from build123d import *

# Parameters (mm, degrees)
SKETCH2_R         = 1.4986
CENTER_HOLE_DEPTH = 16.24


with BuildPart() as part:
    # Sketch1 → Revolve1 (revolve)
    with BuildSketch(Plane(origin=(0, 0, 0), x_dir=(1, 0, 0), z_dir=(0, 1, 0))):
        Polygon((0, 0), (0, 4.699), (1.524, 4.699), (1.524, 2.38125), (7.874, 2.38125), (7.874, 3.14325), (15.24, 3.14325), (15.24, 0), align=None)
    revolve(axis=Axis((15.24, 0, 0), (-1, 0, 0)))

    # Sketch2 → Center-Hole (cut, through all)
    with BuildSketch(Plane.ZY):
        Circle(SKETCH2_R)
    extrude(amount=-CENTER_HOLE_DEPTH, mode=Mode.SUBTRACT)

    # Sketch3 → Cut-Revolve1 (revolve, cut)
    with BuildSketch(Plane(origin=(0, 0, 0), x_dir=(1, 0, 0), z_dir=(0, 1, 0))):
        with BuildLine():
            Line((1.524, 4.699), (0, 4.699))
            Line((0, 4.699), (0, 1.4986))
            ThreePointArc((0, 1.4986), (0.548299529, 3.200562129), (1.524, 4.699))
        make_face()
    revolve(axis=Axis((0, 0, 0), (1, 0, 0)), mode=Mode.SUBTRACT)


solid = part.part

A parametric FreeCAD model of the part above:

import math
import FreeCAD as App
import Part
import Sketcher
Q = App.Units.Quantity


def add_polygon(sketch, points):
    """Adds a closed chain of lines whose ends are joined by coincident constraints."""
    first, n = sketch.GeometryCount, len(points)
    for a, b in zip(points, points[1:] + points[:1]):
        sketch.addGeometry(Part.LineSegment(App.Vector(*a, 0), App.Vector(*b, 0)), False)
    for i in range(n):
        sketch.addConstraint(Sketcher.Constraint("Coincident", first + i, 2, first + (i + 1) % n, 1))

doc = App.newDocument("Part")
body = doc.addObject("PartDesign::Body", "Body")

# Sketch on XZ plane
sketch1 = doc.addObject("Sketcher::SketchObject", "Sketch")
body.addObject(sketch1)
sketch1.AttachmentSupport = (doc.XZ_Plane, [""])
sketch1.MapMode = "FlatFace"
add_polygon(sketch1, [(0, -4.7), (0, 0), (15.2, 0), (15.2, -3.1), (7.9, -3.1), (7.9, -2.4), (1.5, -2.4), (1.5, -4.7)])  # lines 0-7
sketch1.addConstraint([
    Sketcher.Constraint("Vertical", 0),
    Sketcher.Constraint("Horizontal", 1),
    Sketcher.Constraint("Vertical", 2),
    Sketcher.Constraint("Horizontal", 3),
    Sketcher.Constraint("Vertical", 4),
    Sketcher.Constraint("Horizontal", 5),
    Sketcher.Constraint("Vertical", 6),
    Sketcher.Constraint("Horizontal", 7),
    Sketcher.Constraint("Coincident", 0, 2, -1, 1),
    Sketcher.Constraint("DistanceX", 1, 1, 1, 2, Q("0.6 in")),
    Sketcher.Constraint("DistanceX", 3, 2, 3, 1, Q("0.29 in")),
    Sketcher.Constraint("DistanceX", 5, 2, 5, 1, Q("0.25 in")),
    Sketcher.Constraint("DistanceY", 4, 1, 4, 2, Q("0.03 in")),
    Sketcher.Constraint("DistanceY", 0, 1, 0, 2, Q("0.185 in")),
    Sketcher.Constraint("DistanceY", 4, 2, -1, 1, Q("0.09375 in")),
])
revolution = doc.addObject("PartDesign::Revolution", "Revolution")
body.addObject(revolution)
revolution.Profile = sketch1
revolution.ReferenceAxis = (sketch1, ["H_Axis"])
revolution.Angle = 360

# Sketch on YZ plane
sketch2 = doc.addObject("Sketcher::SketchObject", "Sketch001")
body.addObject(sketch2)
sketch2.AttachmentSupport = (doc.YZ_Plane, [""])
sketch2.MapMode = "FlatFace"
sketch2.addGeometry(Part.Circle(App.Vector(0, 0, 0), App.Vector(0, 0, 1), 1.5), False)
sketch2.addConstraint([
    Sketcher.Constraint("Coincident", 0, 3, -1, 1),
    Sketcher.Constraint("Diameter", 0, Q("0.118 in")),
])
pocket1 = doc.addObject("PartDesign::Pocket", "Pocket")
body.addObject(pocket1)
pocket1.Profile = sketch2
pocket1.Type = "ThroughAll"
pocket1.Reversed = True

# Sketch on XZ plane
sketch3 = doc.addObject("Sketcher::SketchObject", "Sketch002")
body.addObject(sketch3)
sketch3.AttachmentSupport = (doc.XZ_Plane, [""])
sketch3.MapMode = "FlatFace"
sketch3.addGeometry([
    Part.LineSegment(App.Vector(1.5, -4.7, 0), App.Vector(0, -4.7, 0)),
    Part.LineSegment(App.Vector(0, -4.7, 0), App.Vector(0, -1.5, 0)),
    Part.ArcOfCircle(Part.Circle(App.Vector(6.6, -0.3, 0), App.Vector(0, 0, 1), 6.8), math.radians(-170), math.radians(-139)),
], False)
sketch3.addConstraint([
    Sketcher.Constraint("Coincident", 0, 2, 1, 1),
    Sketcher.Constraint("Coincident", 1, 2, 2, 1),
    Sketcher.Constraint("Coincident", 2, 2, 0, 1),
    Sketcher.Constraint("Horizontal", 0),
    Sketcher.Constraint("Vertical", 1),
    Sketcher.Constraint("PointOnObject", 0, 2, -2),
    Sketcher.Constraint("DistanceX", 0, 2, 0, 1, Q("0.06 in")),
    Sketcher.Constraint("DistanceY", 1, 1, 1, 2, Q("0.126 in")),
    Sketcher.Constraint("DistanceY", 0, 2, -1, 1, Q("0.185 in")),
    Sketcher.Constraint("Radius", 2, 6.754133),
])
groove = doc.addObject("PartDesign::Groove", "Groove")
body.addObject(groove)
groove.Profile = sketch3
groove.ReferenceAxis = (sketch3, ["H_Axis"])
groove.Angle = 360

doc.recompute()
